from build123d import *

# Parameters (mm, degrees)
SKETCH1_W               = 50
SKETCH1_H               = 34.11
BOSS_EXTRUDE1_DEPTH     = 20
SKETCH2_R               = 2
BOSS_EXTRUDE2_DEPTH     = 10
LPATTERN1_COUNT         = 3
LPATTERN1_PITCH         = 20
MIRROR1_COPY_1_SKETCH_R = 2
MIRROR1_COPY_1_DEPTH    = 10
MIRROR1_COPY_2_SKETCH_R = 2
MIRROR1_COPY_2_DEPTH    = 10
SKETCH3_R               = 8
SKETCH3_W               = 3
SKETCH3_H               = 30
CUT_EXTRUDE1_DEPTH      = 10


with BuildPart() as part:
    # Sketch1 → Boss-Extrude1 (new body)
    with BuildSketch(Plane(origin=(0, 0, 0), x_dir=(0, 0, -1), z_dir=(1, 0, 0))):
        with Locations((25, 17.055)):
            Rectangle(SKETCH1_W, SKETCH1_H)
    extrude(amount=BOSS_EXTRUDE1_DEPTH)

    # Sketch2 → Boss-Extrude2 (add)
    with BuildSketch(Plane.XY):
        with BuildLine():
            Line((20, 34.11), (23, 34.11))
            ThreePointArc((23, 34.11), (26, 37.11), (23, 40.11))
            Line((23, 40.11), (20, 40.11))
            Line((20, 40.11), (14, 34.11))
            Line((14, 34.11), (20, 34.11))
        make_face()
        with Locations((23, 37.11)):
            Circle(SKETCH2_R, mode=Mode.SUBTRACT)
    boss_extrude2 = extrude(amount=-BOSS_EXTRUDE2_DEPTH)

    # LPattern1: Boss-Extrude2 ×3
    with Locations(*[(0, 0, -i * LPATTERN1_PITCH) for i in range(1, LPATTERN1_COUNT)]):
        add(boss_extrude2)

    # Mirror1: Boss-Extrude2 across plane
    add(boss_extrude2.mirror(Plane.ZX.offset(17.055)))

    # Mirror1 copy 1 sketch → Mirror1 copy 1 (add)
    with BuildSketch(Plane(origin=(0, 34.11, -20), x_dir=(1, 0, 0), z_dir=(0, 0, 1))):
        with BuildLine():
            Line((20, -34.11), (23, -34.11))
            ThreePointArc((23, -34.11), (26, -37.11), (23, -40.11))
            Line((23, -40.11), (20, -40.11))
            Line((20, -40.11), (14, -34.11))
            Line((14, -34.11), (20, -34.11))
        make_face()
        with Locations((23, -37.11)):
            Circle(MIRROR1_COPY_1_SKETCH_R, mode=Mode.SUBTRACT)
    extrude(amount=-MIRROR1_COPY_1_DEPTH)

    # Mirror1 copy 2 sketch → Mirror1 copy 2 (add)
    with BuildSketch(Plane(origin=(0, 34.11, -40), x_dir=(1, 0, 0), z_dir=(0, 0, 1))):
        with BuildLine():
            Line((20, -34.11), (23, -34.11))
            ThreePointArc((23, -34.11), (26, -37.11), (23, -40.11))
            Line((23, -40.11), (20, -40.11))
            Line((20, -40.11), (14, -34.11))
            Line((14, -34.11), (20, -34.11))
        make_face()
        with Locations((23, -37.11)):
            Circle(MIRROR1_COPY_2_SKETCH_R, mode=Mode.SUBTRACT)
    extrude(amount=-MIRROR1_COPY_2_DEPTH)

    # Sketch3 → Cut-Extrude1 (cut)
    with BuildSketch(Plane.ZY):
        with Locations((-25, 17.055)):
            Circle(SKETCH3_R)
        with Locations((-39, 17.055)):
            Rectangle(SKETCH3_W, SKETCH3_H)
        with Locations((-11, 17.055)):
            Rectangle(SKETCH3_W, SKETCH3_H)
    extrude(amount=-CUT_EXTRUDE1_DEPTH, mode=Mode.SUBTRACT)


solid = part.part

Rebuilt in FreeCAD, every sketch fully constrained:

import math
import FreeCAD as App
import Part
import Sketcher

V = App.Vector


def add_polygon(sketch, points):
    """Adds a closed chain of lines whose ends are joined by coincident constraints."""
    first, n = sketch.GeometryCount, len(points)
    for a, b in zip(points, points[1:] + points[:1]):
        sketch.addGeometry(Part.LineSegment(App.Vector(*a, 0), App.Vector(*b, 0)), False)
    for i in range(n):
        sketch.addConstraint(Sketcher.Constraint("Coincident", first + i, 2, first + (i + 1) % n, 1))

doc = App.newDocument("Part")
body = doc.addObject("PartDesign::Body", "Body")

sketch1 = body.newObject("Sketcher::SketchObject", "Sketch")
sketch1.AttachmentSupport = (doc.getObject("YZ_Plane"), [""])
sketch1.MapMode = "FlatFace"
add_polygon(sketch1, [(34.11, 0), (0, 0), (0, -50), (34.11, -50)])
sketch1.addConstraint([
    Sketcher.Constraint("Horizontal", 0),
    Sketcher.Constraint("Vertical", 1),
    Sketcher.Constraint("Horizontal", 2),
    Sketcher.Constraint("Vertical", 3),
    Sketcher.Constraint("Coincident", 0, 2, -1, 1),
    Sketcher.Constraint("DistanceY", 1, 2, 1, 1, 50.0),
    Sketcher.Constraint("DistanceX", 0, 2, 0, 1, 34.11),
])
pad1 = body.newObject("PartDesign::Pad", "Pad")
pad1.Profile = sketch1
pad1.Length = 20

sketch2 = body.newObject("Sketcher::SketchObject", "Sketch001")
sketch2.AttachmentSupport = (doc.getObject("XY_Plane"), [""])
sketch2.MapMode = "FlatFace"
sketch2.addGeometry([
    Part.ArcOfCircle(Part.Circle(V(23, 37.11, 0), V(0, 0, 1), 3), math.radians(-90), math.radians(90)),
    Part.LineSegment(V(23, 40.11, 0), V(20, 40.11, 0)),
    Part.LineSegment(V(20, 40.11, 0), V(14, 34.11, 0)),
    Part.LineSegment(V(14, 34.11, 0), V(23, 34.11, 0)),
    Part.Circle(V(23, 37.11, 0), V(0, 0, 1), 2),
], False)
sketch2.addConstraint([
    Sketcher.Constraint("Tangent", 0, 2, 1, 1),
    Sketcher.Constraint("Coincident", 1, 2, 2, 1),
    Sketcher.Constraint("Coincident", 2, 2, 3, 1),
    Sketcher.Constraint("Tangent", 3, 2, 0, 1),
    Sketcher.Constraint("Horizontal", 1),
    Sketcher.Constraint("Horizontal", 3),
    Sketcher.Constraint("Coincident", 4, 3, 0, 3),
    Sketcher.Constraint("Diameter", 4, 4.0),
    Sketcher.Constraint("Radius", 0, 3.0),
    Sketcher.Constraint("DistanceX", 1, 2, 1, 1, 3.0),
    Sketcher.Constraint("DistanceX", 3, 1, 3, 2, 9.0),
    Sketcher.Constraint("DistanceX", -1, 1, 0, 3, 23.0),
    Sketcher.Constraint("DistanceY", -1, 1, 0, 3, 37.11),
])
pad2 = body.newObject("PartDesign::Pad", "Pad001")
pad2.Profile = sketch2
pad2.Length = 10
pad2.Reversed = True
doc.recompute()

linearpattern = body.newObject("PartDesign::LinearPattern", "LinearPattern")
linearpattern.Originals = [pad2]
linearpattern.Direction = (doc.getObject("Z_Axis"), [""])
linearpattern.Mode = "offset"
linearpattern.Offset = 20
linearpattern.Occurrences = 3
linearpattern.Reversed = True
body.Tip = linearpattern
doc.recompute()

datumplane = body.newObject("PartDesign::Plane", "DatumPlane")
datumplane.AttachmentSupport = (doc.getObject("XZ_Plane"), [""])
datumplane.MapMode = "FlatFace"
datumplane.AttachmentOffset = App.Placement(V(0, 0, -17.055), App.Rotation())
mirrored = body.newObject("PartDesign::Mirrored", "Mirrored")
mirrored.Originals = [pad2]
mirrored.MirrorPlane = (datumplane, [""])
body.Tip = mirrored

sketch3 = body.newObject("Sketcher::SketchObject", "Sketch002")
sketch3.AttachmentSupport = (doc.getObject("XY_Plane"), [""])
sketch3.MapMode = "FlatFace"
sketch3.AttachmentOffset = App.Placement(V(0, 0, -20), App.Rotation())
sketch3.addGeometry([
    Part.ArcOfCircle(Part.Circle(V(23, -3, 0), V(0, 0, 1), 3), math.radians(-90), math.radians(90)),
    Part.LineSegment(V(23, 0, 0), V(14, 0, 0)),
    Part.LineSegment(V(14, 0, 0), V(20, -6, 0)),
    Part.LineSegment(V(20, -6, 0), V(23, -6, 0)),
    Part.Circle(V(23, -3, 0), V(0, 0, 1), 2),
], False)
sketch3.addConstraint([
    Sketcher.Constraint("Tangent", 0, 2, 1, 1),
    Sketcher.Constraint("Coincident", 1, 2, 2, 1),
    Sketcher.Constraint("Coincident", 2, 2, 3, 1),
    Sketcher.Constraint("Tangent", 3, 2, 0, 1),
    Sketcher.Constraint("Horizontal", 1),
    Sketcher.Constraint("Horizontal", 3),
    Sketcher.Constraint("Coincident", 4, 3, 0, 3),
    Sketcher.Constraint("PointOnObject", 0, 2, -1),
    Sketcher.Constraint("Diameter", 4, 4.0),
    Sketcher.Constraint("Radius", 0, 3.0),
    Sketcher.Constraint("DistanceX", 1, 2, 1, 1, 9.0),
    Sketcher.Constraint("DistanceX", 3, 1, 3, 2, 3.0),
    Sketcher.Constraint("DistanceX", -1, 1, 0, 3, 23.0),
])
pad3 = body.newObject("PartDesign::Pad", "Pad002")
pad3.Profile = sketch3
pad3.Length = 10
pad3.Reversed = True

sketch4 = body.newObject("Sketcher::SketchObject", "Sketch003")
sketch4.AttachmentSupport = (doc.getObject("XY_Plane"), [""])
sketch4.MapMode = "FlatFace"
sketch4.AttachmentOffset = App.Placement(V(0, 0, -40), App.Rotation())
sketch4.addGeometry([
    Part.ArcOfCircle(Part.Circle(V(23, -3, 0), V(0, 0, 1), 3), math.radians(-90), math.radians(90)),
    Part.LineSegment(V(23, 0, 0), V(14, 0, 0)),
    Part.LineSegment(V(14, 0, 0), V(20, -6, 0)),
    Part.LineSegment(V(20, -6, 0), V(23, -6, 0)),
    Part.Circle(V(23, -3, 0), V(0, 0, 1), 2),
], False)
sketch4.addConstraint([
    Sketcher.Constraint("Tangent", 0, 2, 1, 1),
    Sketcher.Constraint("Coincident", 1, 2, 2, 1),
    Sketcher.Constraint("Coincident", 2, 2, 3, 1),
    Sketcher.Constraint("Tangent", 3, 2, 0, 1),
    Sketcher.Constraint("Horizontal", 1),
    Sketcher.Constraint("Horizontal", 3),
    Sketcher.Constraint("Coincident", 4, 3, 0, 3),
    Sketcher.Constraint("PointOnObject", 0, 2, -1),
    Sketcher.Constraint("Diameter", 4, 4.0),
    Sketcher.Constraint("Radius", 0, 3.0),
    Sketcher.Constraint("DistanceX", 1, 2, 1, 1, 9.0),
    Sketcher.Constraint("DistanceX", 3, 1, 3, 2, 3.0),
    Sketcher.Constraint("DistanceX", -1, 1, 0, 3, 23.0),
])
pad4 = body.newObject("PartDesign::Pad", "Pad003")
pad4.Profile = sketch4
pad4.Length = 10
pad4.Reversed = True

sketch5 = body.newObject("Sketcher::SketchObject", "Sketch004")
sketch5.AttachmentSupport = (doc.getObject("YZ_Plane"), [""])
sketch5.MapMode = "FlatFace"
sketch5.addGeometry(Part.Circle(V(17.055, -25, 0), V(0, 0, 1), 8), False)
add_polygon(sketch5, [(32.055, -40.5), (2.055, -40.5), (2.055, -37.5), (32.055, -37.5)])
add_polygon(sketch5, [(32.055, -12.5), (2.055, -12.5), (2.055, -9.5), (32.055, -9.5)])
sketch5.addConstraint([
    Sketcher.Constraint("Horizontal", 1),
    Sketcher.Constraint("Vertical", 2),
    Sketcher.Constraint("Horizontal", 3),
    Sketcher.Constraint("Vertical", 4),
    Sketcher.Constraint("Horizontal", 5),
    Sketcher.Constraint("Vertical", 6),
    Sketcher.Constraint("Horizontal", 7),
    Sketcher.Constraint("Vertical", 8),
    Sketcher.Constraint("Vertical", 2, 2, 5, 2),
    Sketcher.Constraint("Vertical", 4, 2, 7, 2),
    Sketcher.Constraint("Equal", 4, 6),
    Sketcher.Constraint("Diameter", 0, 16.0),
    Sketcher.Constraint("DistanceX", 1, 2, 1, 1, 30.0),
    Sketcher.Constraint("DistanceY", 2, 1, 2, 2, 3.0),
    Sketcher.Constraint("DistanceY", 0, 3, -1, 1, 25.0),
    Sketcher.Constraint("DistanceX", 1, 2, 0, 3, 15.0),
    Sketcher.Constraint("DistanceY", 2, 2, 5, 2, 25.0),
    Sketcher.Constraint("DistanceY", 1, 2, -1, 1, 40.5),
    Sketcher.Constraint("DistanceX", -1, 1, 0, 3, 17.055),
])
pocket1 = body.newObject("PartDesign::Pocket", "Pocket")
pocket1.Profile = sketch5
pocket1.Length = 10
pocket1.Reversed = True

doc.recompute()
